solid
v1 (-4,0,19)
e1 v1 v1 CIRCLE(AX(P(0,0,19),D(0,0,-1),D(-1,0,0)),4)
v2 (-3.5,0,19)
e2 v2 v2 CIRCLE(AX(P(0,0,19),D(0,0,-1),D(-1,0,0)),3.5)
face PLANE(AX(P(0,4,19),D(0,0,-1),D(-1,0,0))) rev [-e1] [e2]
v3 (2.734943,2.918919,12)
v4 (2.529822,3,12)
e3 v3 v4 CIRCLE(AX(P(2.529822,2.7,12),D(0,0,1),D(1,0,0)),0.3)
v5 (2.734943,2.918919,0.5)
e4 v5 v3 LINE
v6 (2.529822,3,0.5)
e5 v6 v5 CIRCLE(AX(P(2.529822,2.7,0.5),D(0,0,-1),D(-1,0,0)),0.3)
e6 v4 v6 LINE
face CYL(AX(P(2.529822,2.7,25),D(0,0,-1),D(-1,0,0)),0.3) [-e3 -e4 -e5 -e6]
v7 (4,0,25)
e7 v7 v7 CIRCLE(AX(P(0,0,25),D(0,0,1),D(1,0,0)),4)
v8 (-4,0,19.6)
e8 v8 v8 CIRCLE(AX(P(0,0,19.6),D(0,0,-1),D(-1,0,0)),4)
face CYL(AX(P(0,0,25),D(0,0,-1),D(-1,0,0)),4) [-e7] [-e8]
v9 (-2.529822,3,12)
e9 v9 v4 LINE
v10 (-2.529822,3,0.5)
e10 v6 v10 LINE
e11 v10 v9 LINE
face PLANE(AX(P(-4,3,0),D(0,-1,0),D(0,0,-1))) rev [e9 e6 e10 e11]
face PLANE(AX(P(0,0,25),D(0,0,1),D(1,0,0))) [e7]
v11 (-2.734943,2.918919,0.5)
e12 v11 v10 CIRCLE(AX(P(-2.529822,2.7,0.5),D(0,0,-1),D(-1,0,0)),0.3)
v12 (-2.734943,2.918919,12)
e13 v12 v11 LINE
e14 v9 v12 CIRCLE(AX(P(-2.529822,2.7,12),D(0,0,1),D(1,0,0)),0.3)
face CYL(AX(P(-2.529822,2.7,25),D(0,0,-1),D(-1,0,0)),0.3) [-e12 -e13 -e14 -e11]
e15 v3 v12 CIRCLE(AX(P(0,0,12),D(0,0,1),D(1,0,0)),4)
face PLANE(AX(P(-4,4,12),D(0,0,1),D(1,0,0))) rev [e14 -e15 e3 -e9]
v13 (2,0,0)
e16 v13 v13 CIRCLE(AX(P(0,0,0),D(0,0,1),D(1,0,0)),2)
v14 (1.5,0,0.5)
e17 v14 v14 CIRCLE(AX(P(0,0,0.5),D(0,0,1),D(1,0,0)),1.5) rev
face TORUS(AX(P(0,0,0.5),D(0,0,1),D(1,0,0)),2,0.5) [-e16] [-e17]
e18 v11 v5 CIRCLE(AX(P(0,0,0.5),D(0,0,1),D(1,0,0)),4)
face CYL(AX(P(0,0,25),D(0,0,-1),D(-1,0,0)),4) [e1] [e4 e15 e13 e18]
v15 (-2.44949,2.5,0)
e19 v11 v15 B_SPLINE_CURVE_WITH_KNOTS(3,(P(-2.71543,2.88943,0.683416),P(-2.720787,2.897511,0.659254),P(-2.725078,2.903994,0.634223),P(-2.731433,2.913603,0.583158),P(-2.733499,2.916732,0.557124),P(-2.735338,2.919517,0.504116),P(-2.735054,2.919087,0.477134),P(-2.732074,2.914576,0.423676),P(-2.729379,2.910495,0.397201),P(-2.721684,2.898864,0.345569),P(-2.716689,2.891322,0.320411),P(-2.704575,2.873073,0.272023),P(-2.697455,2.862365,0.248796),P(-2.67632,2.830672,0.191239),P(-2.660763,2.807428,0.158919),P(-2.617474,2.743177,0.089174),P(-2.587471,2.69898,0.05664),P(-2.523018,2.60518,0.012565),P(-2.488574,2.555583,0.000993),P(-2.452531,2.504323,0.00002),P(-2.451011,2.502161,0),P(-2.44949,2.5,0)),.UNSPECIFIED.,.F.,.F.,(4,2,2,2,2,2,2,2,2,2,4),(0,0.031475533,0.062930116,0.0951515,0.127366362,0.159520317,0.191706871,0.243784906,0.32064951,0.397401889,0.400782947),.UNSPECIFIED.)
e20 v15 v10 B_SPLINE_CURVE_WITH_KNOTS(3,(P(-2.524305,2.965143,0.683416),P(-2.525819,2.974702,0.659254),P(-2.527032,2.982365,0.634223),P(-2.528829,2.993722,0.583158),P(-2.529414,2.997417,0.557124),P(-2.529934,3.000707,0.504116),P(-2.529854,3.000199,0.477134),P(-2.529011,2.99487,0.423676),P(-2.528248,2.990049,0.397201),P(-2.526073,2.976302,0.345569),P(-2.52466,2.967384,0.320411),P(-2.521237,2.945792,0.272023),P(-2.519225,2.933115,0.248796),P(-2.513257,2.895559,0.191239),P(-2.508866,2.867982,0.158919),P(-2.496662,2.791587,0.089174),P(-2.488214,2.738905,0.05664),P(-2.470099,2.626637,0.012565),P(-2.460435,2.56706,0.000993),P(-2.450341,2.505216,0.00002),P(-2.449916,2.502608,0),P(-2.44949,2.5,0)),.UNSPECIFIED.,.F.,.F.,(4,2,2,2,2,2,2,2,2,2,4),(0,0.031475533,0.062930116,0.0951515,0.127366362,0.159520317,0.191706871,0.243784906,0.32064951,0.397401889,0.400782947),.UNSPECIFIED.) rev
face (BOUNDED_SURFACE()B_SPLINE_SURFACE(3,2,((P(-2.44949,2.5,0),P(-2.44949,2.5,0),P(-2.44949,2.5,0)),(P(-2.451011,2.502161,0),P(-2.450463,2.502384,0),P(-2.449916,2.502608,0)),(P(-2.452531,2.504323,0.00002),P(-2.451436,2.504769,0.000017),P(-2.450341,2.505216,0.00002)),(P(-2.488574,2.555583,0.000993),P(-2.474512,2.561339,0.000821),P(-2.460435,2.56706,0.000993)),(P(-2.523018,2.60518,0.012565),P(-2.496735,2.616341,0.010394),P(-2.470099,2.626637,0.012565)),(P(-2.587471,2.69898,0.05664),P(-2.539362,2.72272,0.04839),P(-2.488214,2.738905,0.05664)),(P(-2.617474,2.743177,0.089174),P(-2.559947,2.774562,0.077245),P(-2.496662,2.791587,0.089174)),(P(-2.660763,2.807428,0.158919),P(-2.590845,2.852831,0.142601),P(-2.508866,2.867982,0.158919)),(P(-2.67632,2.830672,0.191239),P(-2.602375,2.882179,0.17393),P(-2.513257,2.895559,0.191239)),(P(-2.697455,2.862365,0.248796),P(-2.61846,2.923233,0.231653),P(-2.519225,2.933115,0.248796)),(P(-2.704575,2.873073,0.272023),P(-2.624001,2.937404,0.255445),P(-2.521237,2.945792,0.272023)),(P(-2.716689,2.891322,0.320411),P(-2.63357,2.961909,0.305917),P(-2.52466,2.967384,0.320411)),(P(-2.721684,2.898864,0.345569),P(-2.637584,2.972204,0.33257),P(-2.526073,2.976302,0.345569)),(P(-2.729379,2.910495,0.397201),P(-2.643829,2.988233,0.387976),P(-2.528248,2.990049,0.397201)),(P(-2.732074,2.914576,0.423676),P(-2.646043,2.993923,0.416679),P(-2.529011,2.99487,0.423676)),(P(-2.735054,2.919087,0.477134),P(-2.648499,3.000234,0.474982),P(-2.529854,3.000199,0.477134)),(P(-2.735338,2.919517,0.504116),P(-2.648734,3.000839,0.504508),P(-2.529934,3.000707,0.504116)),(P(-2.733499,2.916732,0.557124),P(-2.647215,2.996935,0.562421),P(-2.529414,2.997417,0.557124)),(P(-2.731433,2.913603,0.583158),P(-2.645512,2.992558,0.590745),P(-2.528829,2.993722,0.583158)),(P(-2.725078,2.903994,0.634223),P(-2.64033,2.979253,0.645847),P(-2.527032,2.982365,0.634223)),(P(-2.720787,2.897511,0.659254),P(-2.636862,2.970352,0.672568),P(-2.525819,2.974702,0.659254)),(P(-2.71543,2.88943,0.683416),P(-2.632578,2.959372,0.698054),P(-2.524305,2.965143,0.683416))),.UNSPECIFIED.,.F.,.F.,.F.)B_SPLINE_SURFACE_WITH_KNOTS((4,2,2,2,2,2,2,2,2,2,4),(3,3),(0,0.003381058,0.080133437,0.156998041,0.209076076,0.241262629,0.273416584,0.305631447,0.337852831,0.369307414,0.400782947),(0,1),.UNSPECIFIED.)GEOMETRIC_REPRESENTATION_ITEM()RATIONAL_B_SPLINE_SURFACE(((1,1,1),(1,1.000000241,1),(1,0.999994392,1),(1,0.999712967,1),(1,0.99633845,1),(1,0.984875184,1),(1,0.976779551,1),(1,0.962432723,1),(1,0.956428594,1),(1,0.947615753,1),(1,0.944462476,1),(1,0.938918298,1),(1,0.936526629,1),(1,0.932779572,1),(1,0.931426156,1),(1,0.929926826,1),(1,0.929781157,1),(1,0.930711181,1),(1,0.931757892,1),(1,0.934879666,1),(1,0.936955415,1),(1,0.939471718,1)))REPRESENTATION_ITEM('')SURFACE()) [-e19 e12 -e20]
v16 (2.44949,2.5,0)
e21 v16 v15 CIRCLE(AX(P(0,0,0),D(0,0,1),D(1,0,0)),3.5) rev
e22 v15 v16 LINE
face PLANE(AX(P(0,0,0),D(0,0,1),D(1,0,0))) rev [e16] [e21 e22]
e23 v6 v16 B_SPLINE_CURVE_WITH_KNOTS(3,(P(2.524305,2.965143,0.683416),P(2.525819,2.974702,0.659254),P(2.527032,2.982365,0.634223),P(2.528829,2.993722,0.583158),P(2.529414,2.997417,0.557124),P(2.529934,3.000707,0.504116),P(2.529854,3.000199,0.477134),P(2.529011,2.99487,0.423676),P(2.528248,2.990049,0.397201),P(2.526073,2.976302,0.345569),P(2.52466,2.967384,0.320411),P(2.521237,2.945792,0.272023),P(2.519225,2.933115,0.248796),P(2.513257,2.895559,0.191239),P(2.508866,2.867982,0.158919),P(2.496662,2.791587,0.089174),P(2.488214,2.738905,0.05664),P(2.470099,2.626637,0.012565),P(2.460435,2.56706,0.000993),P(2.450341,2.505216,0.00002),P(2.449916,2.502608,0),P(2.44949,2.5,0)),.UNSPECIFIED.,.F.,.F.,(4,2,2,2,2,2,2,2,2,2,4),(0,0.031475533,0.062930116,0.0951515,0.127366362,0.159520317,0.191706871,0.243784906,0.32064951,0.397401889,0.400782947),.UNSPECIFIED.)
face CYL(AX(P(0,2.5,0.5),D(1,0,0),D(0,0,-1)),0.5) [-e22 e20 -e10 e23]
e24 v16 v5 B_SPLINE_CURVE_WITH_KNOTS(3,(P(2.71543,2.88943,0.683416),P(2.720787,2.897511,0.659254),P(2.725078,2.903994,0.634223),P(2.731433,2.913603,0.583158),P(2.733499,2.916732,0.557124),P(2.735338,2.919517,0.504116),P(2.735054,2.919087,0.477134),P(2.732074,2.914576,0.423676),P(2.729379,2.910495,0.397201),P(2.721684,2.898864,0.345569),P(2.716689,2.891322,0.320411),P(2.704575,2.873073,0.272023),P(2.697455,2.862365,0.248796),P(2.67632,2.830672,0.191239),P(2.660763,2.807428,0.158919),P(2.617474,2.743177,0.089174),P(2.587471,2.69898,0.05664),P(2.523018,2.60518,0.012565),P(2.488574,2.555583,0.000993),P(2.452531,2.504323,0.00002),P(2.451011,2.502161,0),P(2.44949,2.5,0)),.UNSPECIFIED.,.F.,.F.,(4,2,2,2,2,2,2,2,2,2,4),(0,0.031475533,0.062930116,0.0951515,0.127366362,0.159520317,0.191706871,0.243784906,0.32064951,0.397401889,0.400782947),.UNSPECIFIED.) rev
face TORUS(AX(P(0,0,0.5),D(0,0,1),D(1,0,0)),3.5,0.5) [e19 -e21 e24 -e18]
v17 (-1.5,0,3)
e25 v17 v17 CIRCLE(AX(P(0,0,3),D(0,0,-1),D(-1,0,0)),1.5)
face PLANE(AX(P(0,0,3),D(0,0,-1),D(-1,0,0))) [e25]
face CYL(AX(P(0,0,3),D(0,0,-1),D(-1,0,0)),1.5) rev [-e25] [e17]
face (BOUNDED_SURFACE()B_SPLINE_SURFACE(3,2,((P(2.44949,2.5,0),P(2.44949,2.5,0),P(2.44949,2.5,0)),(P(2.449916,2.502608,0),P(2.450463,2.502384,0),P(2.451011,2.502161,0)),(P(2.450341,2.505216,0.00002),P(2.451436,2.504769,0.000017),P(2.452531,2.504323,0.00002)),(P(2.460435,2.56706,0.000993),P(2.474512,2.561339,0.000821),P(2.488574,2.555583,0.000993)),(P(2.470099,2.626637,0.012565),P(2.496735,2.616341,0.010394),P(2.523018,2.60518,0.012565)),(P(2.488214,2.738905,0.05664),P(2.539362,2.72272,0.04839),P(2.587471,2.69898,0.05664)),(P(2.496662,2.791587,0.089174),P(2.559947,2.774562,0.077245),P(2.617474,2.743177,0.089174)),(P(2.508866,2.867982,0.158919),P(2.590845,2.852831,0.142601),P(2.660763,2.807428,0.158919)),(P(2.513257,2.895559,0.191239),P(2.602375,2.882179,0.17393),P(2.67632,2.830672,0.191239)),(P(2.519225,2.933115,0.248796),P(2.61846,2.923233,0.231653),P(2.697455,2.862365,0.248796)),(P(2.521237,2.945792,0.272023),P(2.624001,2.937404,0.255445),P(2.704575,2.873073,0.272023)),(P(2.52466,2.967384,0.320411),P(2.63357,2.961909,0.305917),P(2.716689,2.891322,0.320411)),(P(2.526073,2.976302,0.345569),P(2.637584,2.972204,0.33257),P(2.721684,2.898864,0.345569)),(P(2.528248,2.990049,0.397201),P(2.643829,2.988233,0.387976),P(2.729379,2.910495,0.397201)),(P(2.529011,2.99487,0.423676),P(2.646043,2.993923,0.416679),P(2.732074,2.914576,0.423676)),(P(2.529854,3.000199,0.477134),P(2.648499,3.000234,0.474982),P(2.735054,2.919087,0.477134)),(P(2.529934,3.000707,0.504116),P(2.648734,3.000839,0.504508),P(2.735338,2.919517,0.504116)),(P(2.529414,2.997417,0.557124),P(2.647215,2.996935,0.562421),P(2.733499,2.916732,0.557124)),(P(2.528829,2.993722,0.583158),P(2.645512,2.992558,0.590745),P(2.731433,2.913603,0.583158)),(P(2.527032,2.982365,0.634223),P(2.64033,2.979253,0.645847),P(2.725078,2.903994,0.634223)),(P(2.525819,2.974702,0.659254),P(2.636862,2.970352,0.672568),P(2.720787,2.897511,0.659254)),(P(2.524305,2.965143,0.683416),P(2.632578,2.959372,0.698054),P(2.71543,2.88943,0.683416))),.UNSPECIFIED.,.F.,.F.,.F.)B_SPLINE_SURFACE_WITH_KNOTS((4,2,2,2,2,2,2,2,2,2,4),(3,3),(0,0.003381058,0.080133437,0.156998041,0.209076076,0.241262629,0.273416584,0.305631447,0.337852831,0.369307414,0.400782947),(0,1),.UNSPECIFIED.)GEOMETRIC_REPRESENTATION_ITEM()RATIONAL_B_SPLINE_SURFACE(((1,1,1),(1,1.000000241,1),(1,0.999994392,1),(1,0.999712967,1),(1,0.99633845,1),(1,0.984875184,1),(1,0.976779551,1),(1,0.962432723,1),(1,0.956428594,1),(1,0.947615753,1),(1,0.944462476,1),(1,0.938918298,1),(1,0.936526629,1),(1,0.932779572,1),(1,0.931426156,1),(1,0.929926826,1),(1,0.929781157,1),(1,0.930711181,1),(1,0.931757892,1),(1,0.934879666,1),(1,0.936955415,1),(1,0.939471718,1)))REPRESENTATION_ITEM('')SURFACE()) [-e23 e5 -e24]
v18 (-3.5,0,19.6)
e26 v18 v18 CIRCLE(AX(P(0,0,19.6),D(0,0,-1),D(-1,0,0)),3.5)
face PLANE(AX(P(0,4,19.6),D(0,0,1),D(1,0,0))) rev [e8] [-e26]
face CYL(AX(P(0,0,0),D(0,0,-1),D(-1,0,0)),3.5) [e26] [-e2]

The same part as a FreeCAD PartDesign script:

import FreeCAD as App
import Part
import Sketcher
from FreeCAD import Vector
Q = App.Units.Quantity


def edges_at(feature, points):
    """Names of the edges that pass closest to the given points."""
    edges = feature.Shape.Edges
    near = lambda p: min(range(len(edges)), key=lambda i: edges[i].distToShape(Part.Vertex(*p))[0])
    return sorted({f"Edge{near(p) + 1}" for p in points})

doc = App.newDocument("Part")
params = doc.addObject("Spreadsheet::Sheet", "Params")
for row, (alias, value) in enumerate([
    ("sketch1_diameter", "8 mm"),
    ("pad1_length", "25 mm"),
    ("sketch2_width", "1 mm"),
    ("sketch2_height", "12 mm"),
    ("sketch3_width", "0.5 mm"),
    ("sketch3_height", "0.6 mm"),
    ("groove_angle", "360 deg"),
    ("sketch4_diameter", "3 mm"),
    ("pocket2_length", "3 mm"),
    ("fillet_radius", "0.5 mm"),
    ("fillet2_radius", "0.3 mm"),
], start=1):
    params.set(f"A{row}", alias)
    params.set(f"B{row}", "=" + value)
    params.setAlias(f"B{row}", alias)

body = doc.addObject("PartDesign::Body", "Body")

sketch1 = doc.addObject("Sketcher::SketchObject", "Sketch")
body.addObject(sketch1)
sketch1.AttachmentSupport = (doc.XY_Plane, [""])
sketch1.MapMode = "FlatFace"
sketch1.addGeometry(Part.Circle(Vector(0, 0, 0), Vector(0, 0, 1), 4), False)
sketch1.addConstraint([
    Sketcher.Constraint("Coincident", 0, 3, -1, 1),
    Sketcher.Constraint("Diameter", 0, Q("8 mm")),
])
sketch1.setExpression("Constraints[1]", "Params.sketch1_diameter")
pad1 = doc.addObject("PartDesign::Pad", "Pad")
body.addObject(pad1)
pad1.Profile = sketch1
pad1.setExpression("Length", "Params.pad1_length")

sketch2 = doc.addObject("Sketcher::SketchObject", "Sketch001")
body.addObject(sketch2)
sketch2.AttachmentSupport = (doc.YZ_Plane, [""])
sketch2.MapMode = "FlatFace"
sketch2.addGeometry([
    Part.LineSegment(Vector(4, 12, 0), Vector(3, 12, 0)),
    Part.LineSegment(Vector(3, 12, 0), Vector(3, 0, 0)),
    Part.LineSegment(Vector(3, 0, 0), Vector(4, 0, 0)),
    Part.LineSegment(Vector(4, 0, 0), Vector(4, 12, 0)),
], False)
sketch2.addConstraint([
    Sketcher.Constraint("Coincident", 0, 2, 1, 1),
    Sketcher.Constraint("Coincident", 1, 2, 2, 1),
    Sketcher.Constraint("Coincident", 2, 2, 3, 1),
    Sketcher.Constraint("Coincident", 3, 2, 0, 1),
    Sketcher.Constraint("Horizontal", 0),
    Sketcher.Constraint("Vertical", 1),
    Sketcher.Constraint("Horizontal", 2),
    Sketcher.Constraint("Vertical", 3),
    Sketcher.Constraint("PointOnObject", 1, 2, -1),
    Sketcher.Constraint("DistanceX", 0, 2, 0, 1, Q("1 mm")),
    Sketcher.Constraint("DistanceY", 1, 2, 1, 1, Q("12 mm")),
    Sketcher.Constraint("DistanceX", -1, 1, 0, 2, Q("3 mm")),
])
sketch2.setExpression("Constraints[9]", "Params.sketch2_width")
sketch2.setExpression("Constraints[10]", "Params.sketch2_height")
pocket1 = doc.addObject("PartDesign::Pocket", "Pocket")
body.addObject(pocket1)
pocket1.Profile = sketch2
pocket1.Type = "ThroughAll"
pocket1.Midplane = True

sketch3 = doc.addObject("Sketcher::SketchObject", "Sketch002")
body.addObject(sketch3)
sketch3.AttachmentSupport = (doc.YZ_Plane, [""])
sketch3.MapMode = "FlatFace"
sketch3.addGeometry([
    Part.LineSegment(Vector(4, 19.6, 0), Vector(3.5, 19.6, 0)),
    Part.LineSegment(Vector(3.5, 19.6, 0), Vector(3.5, 19, 0)),
    Part.LineSegment(Vector(3.5, 19, 0), Vector(4, 19, 0)),
    Part.LineSegment(Vector(4, 19, 0), Vector(4, 19.6, 0)),
], False)
sketch3.addConstraint([
    Sketcher.Constraint("Coincident", 0, 2, 1, 1),
    Sketcher.Constraint("Coincident", 1, 2, 2, 1),
    Sketcher.Constraint("Coincident", 2, 2, 3, 1),
    Sketcher.Constraint("Coincident", 3, 2, 0, 1),
    Sketcher.Constraint("Horizontal", 0),
    Sketcher.Constraint("Vertical", 1),
    Sketcher.Constraint("Horizontal", 2),
    Sketcher.Constraint("Vertical", 3),
    Sketcher.Constraint("DistanceX", 0, 2, 0, 1, Q("0.5 mm")),
    Sketcher.Constraint("DistanceY", 1, 2, 1, 1, Q("0.6 mm")),
    Sketcher.Constraint("DistanceY", -1, 1, 1, 2, Q("19 mm")),
    Sketcher.Constraint("DistanceX", -1, 1, 2, 2, Q("4 mm")),
])
sketch3.setExpression("Constraints[8]", "Params.sketch3_width")
sketch3.setExpression("Constraints[9]", "Params.sketch3_height")
groove = doc.addObject("PartDesign::Groove", "Groove")
body.addObject(groove)
groove.Profile = sketch3
groove.ReferenceAxis = (sketch3, ["V_Axis"])
groove.setExpression("Angle", "Params.groove_angle")

sketch4 = doc.addObject("Sketcher::SketchObject", "Sketch003")
body.addObject(sketch4)
sketch4.AttachmentSupport = (doc.XY_Plane, [""])
sketch4.MapMode = "FlatFace"
sketch4.addGeometry(Part.Circle(Vector(0, 0, 0), Vector(0, 0, 1), 1.5), False)
sketch4.addConstraint([
    Sketcher.Constraint("Coincident", 0, 3, -1, 1),
    Sketcher.Constraint("Diameter", 0, Q("3 mm")),
])
sketch4.setExpression("Constraints[1]", "Params.sketch4_diameter")
pocket2 = doc.addObject("PartDesign::Pocket", "Pocket001")
body.addObject(pocket2)
pocket2.Profile = sketch4
pocket2.setExpression("Length", "Params.pocket2_length")
pocket2.Reversed = True
doc.recompute()

fillet = doc.addObject("PartDesign::Fillet", "Fillet")
body.addObject(fillet)
fillet.Base = (pocket2, edges_at(pocket2, [(1.5, 0, 0), (-1.646, -3.646, 0), (0, 3, 0)]))
fillet.setExpression("Radius", "Params.fillet_radius")
doc.recompute()

fillet2 = doc.addObject("PartDesign::Fillet", "Fillet001")
body.addObject(fillet2)
fillet2.Base = (fillet, edges_at(fillet, [
    (2.646, 3, 6.25),
    (-2.587, 2.847, 0.14),
    (2.587, 2.847, 0.14),
    (-2.646, 3, 6.25),
]))
fillet2.setExpression("Radius", "Params.fillet2_radius")

doc.recompute()
